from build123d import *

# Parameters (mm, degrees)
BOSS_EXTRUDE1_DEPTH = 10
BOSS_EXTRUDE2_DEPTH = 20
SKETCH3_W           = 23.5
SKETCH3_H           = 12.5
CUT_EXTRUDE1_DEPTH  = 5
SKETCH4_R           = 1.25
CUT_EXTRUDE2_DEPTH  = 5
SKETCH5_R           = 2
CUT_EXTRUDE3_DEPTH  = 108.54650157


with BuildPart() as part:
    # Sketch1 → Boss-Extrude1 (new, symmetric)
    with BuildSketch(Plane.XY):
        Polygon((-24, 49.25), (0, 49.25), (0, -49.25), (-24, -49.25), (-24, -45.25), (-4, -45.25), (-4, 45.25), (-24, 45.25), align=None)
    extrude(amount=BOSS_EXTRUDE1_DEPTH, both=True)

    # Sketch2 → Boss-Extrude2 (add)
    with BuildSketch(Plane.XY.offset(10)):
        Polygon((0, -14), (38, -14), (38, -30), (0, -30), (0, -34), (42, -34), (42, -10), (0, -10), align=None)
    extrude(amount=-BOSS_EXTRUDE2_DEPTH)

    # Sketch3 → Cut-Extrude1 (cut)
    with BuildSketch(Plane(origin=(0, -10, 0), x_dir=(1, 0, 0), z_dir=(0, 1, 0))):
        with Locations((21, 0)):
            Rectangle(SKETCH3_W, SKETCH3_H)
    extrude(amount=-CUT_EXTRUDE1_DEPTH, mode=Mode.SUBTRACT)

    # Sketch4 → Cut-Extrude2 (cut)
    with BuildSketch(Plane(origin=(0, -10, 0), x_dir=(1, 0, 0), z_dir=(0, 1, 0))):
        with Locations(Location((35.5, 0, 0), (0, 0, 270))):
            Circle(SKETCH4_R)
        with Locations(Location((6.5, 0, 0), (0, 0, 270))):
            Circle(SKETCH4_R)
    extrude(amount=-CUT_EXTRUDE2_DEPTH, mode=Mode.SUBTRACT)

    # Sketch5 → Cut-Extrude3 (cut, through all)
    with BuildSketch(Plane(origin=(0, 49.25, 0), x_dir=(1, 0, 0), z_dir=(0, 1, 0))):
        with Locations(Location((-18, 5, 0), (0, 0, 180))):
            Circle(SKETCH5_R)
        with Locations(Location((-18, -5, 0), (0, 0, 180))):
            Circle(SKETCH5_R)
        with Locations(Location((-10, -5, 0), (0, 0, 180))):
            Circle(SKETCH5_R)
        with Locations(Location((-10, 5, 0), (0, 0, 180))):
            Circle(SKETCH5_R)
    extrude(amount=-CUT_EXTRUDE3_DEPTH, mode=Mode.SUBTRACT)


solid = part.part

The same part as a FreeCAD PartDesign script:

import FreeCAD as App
import Part
import Sketcher
Q = App.Units.Quantity


def add_polygon(sketch, points):
    """Adds a closed chain of lines whose ends are joined by coincident constraints."""
    first, n = sketch.GeometryCount, len(points)
    for a, b in zip(points, points[1:] + points[:1]):
        sketch.addGeometry(Part.LineSegment(App.Vector(*a, 0), App.Vector(*b, 0)), False)
    for i in range(n):
        sketch.addConstraint(Sketcher.Constraint("Coincident", first + i, 2, first + (i + 1) % n, 1))

doc = App.newDocument("Part")
params = doc.addObject("Spreadsheet::Sheet", "Params")
for row, (alias, value) in enumerate([
    ("sketch1_width", "24 mm"),
    ("sketch1_width2", "20 mm"),
    ("sketch1_height", "4 mm"),
    ("sketch1_height2", "90.5 mm"),
    ("pad1_length", "20 mm"),
    ("sketch2_width", "38 mm"),
    ("sketch2_width2", "42 mm"),
    ("sketch2_height", "16 mm"),
    ("sketch2_height2", "4 mm"),
    ("pad2_length", "20 mm"),
    ("sketch3_width", "23.5 mm"),
    ("sketch3_height", "12.5 mm"),
    ("pocket1_length", "5 mm"),
    ("sketch4_diameter", "2.5 mm"),
    ("pocket2_length", "5 mm"),
    ("sketch5_diameter", "4 mm"),
], start=1):
    params.set(f"A{row}", alias)
    params.set(f"B{row}", "=" + value)
    params.setAlias(f"B{row}", alias)

body = doc.addObject("PartDesign::Body", "Body")

# Sketch on XY plane
sketch1 = body.newObject("Sketcher::SketchObject", "Sketch")
sketch1.AttachmentSupport = (doc.getObject("XY_Plane"), [""])
sketch1.MapMode = "FlatFace"
add_polygon(sketch1, [(0, 49.2), (-24, 49.2), (-24, 45.2), (-4, 45.2), (-4, -45.2), (-24, -45.2), (-24, -49.2), (0, -49.2)])  # lines 0-7
sketch1.addConstraint([
    Sketcher.Constraint("Horizontal", 0),
    Sketcher.Constraint("Vertical", 1),
    Sketcher.Constraint("Horizontal", 2),
    Sketcher.Constraint("Vertical", 3),
    Sketcher.Constraint("Horizontal", 4),
    Sketcher.Constraint("Vertical", 5),
    Sketcher.Constraint("Horizontal", 6),
    Sketcher.Constraint("Vertical", 7),
    Sketcher.Constraint("Symmetric", 6, 2, 7, 2, -1, 1),
    Sketcher.Constraint("Symmetric", 1, 2, 4, 2, -1),
    Sketcher.Constraint("DistanceX", 0, 2, 0, 1, Q("24 mm")),
    Sketcher.Constraint("DistanceX", 2, 1, 2, 2, Q("20 mm")),
    Sketcher.Constraint("DistanceY", 1, 2, 1, 1, Q("4 mm")),
    Sketcher.Constraint("DistanceY", 3, 2, 3, 1, Q("90.5 mm")),
])
sketch1.setExpression("Constraints[18]", "Params.sketch1_width")
sketch1.setExpression("Constraints[19]", "Params.sketch1_width2")
sketch1.setExpression("Constraints[20]", "Params.sketch1_height")
sketch1.setExpression("Constraints[21]", "Params.sketch1_height2")
pad1 = body.newObject("PartDesign::Pad", "Pad")
pad1.Profile = sketch1
pad1.setExpression("Length", "Params.pad1_length")
pad1.Midplane = True

# Sketch on XY plane
sketch2 = body.newObject("Sketcher::SketchObject", "Sketch001")
sketch2.AttachmentSupport = (doc.getObject("XY_Plane"), [""])
sketch2.MapMode = "FlatFace"
sketch2.AttachmentOffset = App.Placement(App.Vector(0, 0, 10), App.Rotation())
add_polygon(sketch2, [(0, -14), (38, -14), (38, -30), (0, -30), (0, -34), (42, -34), (42, -10), (0, -10)])  # lines 0-7
sketch2.addConstraint([
    Sketcher.Constraint("Horizontal", 0),
    Sketcher.Constraint("Vertical", 1),
    Sketcher.Constraint("Horizontal", 2),
    Sketcher.Constraint("Vertical", 3),
    Sketcher.Constraint("Horizontal", 4),
    Sketcher.Constraint("Vertical", 5),
    Sketcher.Constraint("Horizontal", 6),
    Sketcher.Constraint("Vertical", 7),
    Sketcher.Constraint("PointOnObject", 2, 2, -2),
    Sketcher.Constraint("PointOnObject", 6, 2, -2),
    Sketcher.Constraint("Equal", 3, 7),
    Sketcher.Constraint("DistanceX", 0, 1, 0, 2, Q("38 mm")),
    Sketcher.Constraint("DistanceX", 4, 1, 4, 2, Q("42 mm")),
    Sketcher.Constraint("DistanceY", 1, 2, 1, 1, Q("16 mm")),
    Sketcher.Constraint("DistanceY", 3, 2, 3, 1, Q("4 mm")),
    Sketcher.Constraint("DistanceY", 0, 2, -1, 1, Q("14 mm")),
])
sketch2.setExpression("Constraints[19]", "Params.sketch2_width")
sketch2.setExpression("Constraints[20]", "Params.sketch2_width2")
sketch2.setExpression("Constraints[21]", "Params.sketch2_height")
sketch2.setExpression("Constraints[22]", "Params.sketch2_height2")
pad2 = body.newObject("PartDesign::Pad", "Pad001")
pad2.Profile = sketch2
pad2.setExpression("Length", "Params.pad2_length")
pad2.Reversed = True

# Sketch on XZ plane
sketch3 = body.newObject("Sketcher::SketchObject", "Sketch002")
sketch3.AttachmentSupport = (doc.getObject("XZ_Plane"), [""])
sketch3.MapMode = "FlatFace"
sketch3.AttachmentOffset = App.Placement(App.Vector(0, 0, 10), App.Rotation())
add_polygon(sketch3, [(9, -6), (9, 6), (33, 6), (33, -6)])  # lines 0-3
sketch3.addConstraint([
    Sketcher.Constraint("Vertical", 0),
    Sketcher.Constraint("Horizontal", 1),
    Sketcher.Constraint("Vertical", 2),
    Sketcher.Constraint("Horizontal", 3),
    Sketcher.Constraint("DistanceX", 1, 1, 1, 2, Q("23.5 mm")),
    Sketcher.Constraint("DistanceY", 0, 1, 0, 2, Q("12.5 mm")),
    Sketcher.Constraint("DistanceX", -1, 1, 0, 2, Q("9.25 mm")),
    Sketcher.Constraint("DistanceY", -1, 1, 0, 2, Q("6.25 mm")),
])
sketch3.setExpression("Constraints[8]", "Params.sketch3_width")
sketch3.setExpression("Constraints[9]", "Params.sketch3_height")
pocket1 = body.newObject("PartDesign::Pocket", "Pocket")
pocket1.Profile = sketch3
pocket1.setExpression("Length", "Params.pocket1_length")
pocket1.Reversed = True

# Sketch on XZ plane
sketch4 = body.newObject("Sketcher::SketchObject", "Sketch003")
sketch4.AttachmentSupport = (doc.getObject("XZ_Plane"), [""])
sketch4.MapMode = "FlatFace"
sketch4.AttachmentOffset = App.Placement(App.Vector(0, 0, 10), App.Rotation())
sketch4.addGeometry([
    Part.Circle(App.Vector(35.5, 0, 0), App.Vector(0, 0, 1), 1.2),
    Part.Circle(App.Vector(6.5, 0, 0), App.Vector(0, 0, 1), 1.2),
], False)
sketch4.addConstraint([
    Sketcher.Constraint("Equal", 0, 1),
    Sketcher.Constraint("PointOnObject", 0, 3, -1),
    Sketcher.Constraint("PointOnObject", 1, 3, -1),
    Sketcher.Constraint("Diameter", 0, Q("2.5 mm")),
    Sketcher.Constraint("DistanceX", 1, 3, 0, 3, Q("29 mm")),
    Sketcher.Constraint("DistanceX", -1, 1, 0, 3, Q("35.5 mm")),
])
sketch4.setExpression("Constraints[3]", "Params.sketch4_diameter")
pocket2 = body.newObject("PartDesign::Pocket", "Pocket001")
pocket2.Profile = sketch4
pocket2.setExpression("Length", "Params.pocket2_length")
pocket2.Reversed = True

# Sketch on XZ plane
sketch5 = body.newObject("Sketcher::SketchObject", "Sketch004")
sketch5.AttachmentSupport = (doc.getObject("XZ_Plane"), [""])
sketch5.MapMode = "FlatFace"
sketch5.AttachmentOffset = App.Placement(App.Vector(0, 0, -49.25), App.Rotation())
sketch5.addGeometry([
    Part.Circle(App.Vector(-18, -5, 0), App.Vector(0, 0, 1), 2),
    Part.Circle(App.Vector(-18, 5, 0), App.Vector(0, 0, 1), 2),
    Part.Circle(App.Vector(-10, 5, 0), App.Vector(0, 0, 1), 2),
    Part.Circle(App.Vector(-10, -5, 0), App.Vector(0, 0, 1), 2),
], False)
sketch5.addConstraint([
    Sketcher.Constraint("Equal", 0, 1),
    Sketcher.Constraint("Equal", 1, 2),
    Sketcher.Constraint("Equal", 2, 3),
    Sketcher.Constraint("Symmetric", 0, 3, 1, 3, -1),
    Sketcher.Constraint("Symmetric", 2, 3, 3, 3, -1),
    Sketcher.Constraint("Horizontal", 1, 3, 2, 3),
    Sketcher.Constraint("Diameter", 0, Q("4 mm")),
    Sketcher.Constraint("DistanceX", 0, 3, -1, 1, Q("18 mm")),
    Sketcher.Constraint("DistanceY", 0, 3, -1, 1, Q("5 mm")),
    Sketcher.Constraint("DistanceX", 2, 3, -1, 1, Q("10 mm")),
])
sketch5.setExpression("Constraints[6]", "Params.sketch5_diameter")
pocket3 = body.newObject("PartDesign::Pocket", "Pocket002")
pocket3.Profile = sketch5
pocket3.Type = "ThroughAll"
pocket3.Reversed = True

doc.recompute()
